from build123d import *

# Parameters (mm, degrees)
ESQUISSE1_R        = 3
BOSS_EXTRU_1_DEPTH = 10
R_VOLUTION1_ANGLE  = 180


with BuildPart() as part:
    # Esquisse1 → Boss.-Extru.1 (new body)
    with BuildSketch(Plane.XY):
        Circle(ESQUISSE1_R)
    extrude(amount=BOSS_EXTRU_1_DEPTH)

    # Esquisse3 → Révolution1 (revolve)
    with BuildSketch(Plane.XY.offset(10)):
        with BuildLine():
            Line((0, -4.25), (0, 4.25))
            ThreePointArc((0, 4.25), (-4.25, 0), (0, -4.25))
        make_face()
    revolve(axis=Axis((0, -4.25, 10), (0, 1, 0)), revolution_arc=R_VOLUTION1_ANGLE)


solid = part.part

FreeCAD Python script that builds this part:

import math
import FreeCAD as App
import Part
import Sketcher

doc = App.newDocument("Part")
body = doc.addObject("PartDesign::Body", "Body")

# Sketch on XY plane
sketch1 = body.newObject("Sketcher::SketchObject", "Sketch")
sketch1.AttachmentSupport = (doc.getObject("XY_Plane"), [""])
sketch1.MapMode = "FlatFace"
sketch1.addGeometry(Part.Circle(App.Vector(0, 0, 0), App.Vector(0, 0, 1), 3), False)
sketch1.addConstraint(Sketcher.Constraint("Coincident", 0, 3, -1, 1))
sketch1.addConstraint(Sketcher.Constraint("Diameter", 0, 6.0))
pad1 = body.newObject("PartDesign::Pad", "Pad")
pad1.Profile = sketch1
pad1.Length = 10

# Sketch on XY plane
sketch2 = body.newObject("Sketcher::SketchObject", "Sketch001")
sketch2.AttachmentSupport = (doc.getObject("XY_Plane"), [""])
sketch2.MapMode = "FlatFace"
sketch2.AttachmentOffset = App.Placement(App.Vector(0, 0, 10), App.Rotation())
sketch2.addGeometry(Part.LineSegment(App.Vector(0, -4.25, 0), App.Vector(0, 4.25, 0)), False)
sketch2.addGeometry(Part.ArcOfCircle(Part.Circle(App.Vector(0, 0, 0), App.Vector(0, 0, 1), 4.25), math.radians(90), math.radians(270)), False)
sketch2.addConstraint(Sketcher.Constraint("Coincident", 0, 1, 1, 2))
sketch2.addConstraint(Sketcher.Constraint("Coincident", 1, 1, 0, 2))
sketch2.addConstraint(Sketcher.Constraint("Vertical", 0))
sketch2.addConstraint(Sketcher.Constraint("Coincident", 1, 3, -1, 1))
sketch2.addConstraint(Sketcher.Constraint("PointOnObject", 0, 1, -2))
sketch2.addConstraint(Sketcher.Constraint("Radius", 1, 4.25))
revolution = body.newObject("PartDesign::Revolution", "Revolution")
revolution.Profile = sketch2
revolution.ReferenceAxis = (sketch2, ["V_Axis"])
revolution.Angle = 180

doc.recompute()
